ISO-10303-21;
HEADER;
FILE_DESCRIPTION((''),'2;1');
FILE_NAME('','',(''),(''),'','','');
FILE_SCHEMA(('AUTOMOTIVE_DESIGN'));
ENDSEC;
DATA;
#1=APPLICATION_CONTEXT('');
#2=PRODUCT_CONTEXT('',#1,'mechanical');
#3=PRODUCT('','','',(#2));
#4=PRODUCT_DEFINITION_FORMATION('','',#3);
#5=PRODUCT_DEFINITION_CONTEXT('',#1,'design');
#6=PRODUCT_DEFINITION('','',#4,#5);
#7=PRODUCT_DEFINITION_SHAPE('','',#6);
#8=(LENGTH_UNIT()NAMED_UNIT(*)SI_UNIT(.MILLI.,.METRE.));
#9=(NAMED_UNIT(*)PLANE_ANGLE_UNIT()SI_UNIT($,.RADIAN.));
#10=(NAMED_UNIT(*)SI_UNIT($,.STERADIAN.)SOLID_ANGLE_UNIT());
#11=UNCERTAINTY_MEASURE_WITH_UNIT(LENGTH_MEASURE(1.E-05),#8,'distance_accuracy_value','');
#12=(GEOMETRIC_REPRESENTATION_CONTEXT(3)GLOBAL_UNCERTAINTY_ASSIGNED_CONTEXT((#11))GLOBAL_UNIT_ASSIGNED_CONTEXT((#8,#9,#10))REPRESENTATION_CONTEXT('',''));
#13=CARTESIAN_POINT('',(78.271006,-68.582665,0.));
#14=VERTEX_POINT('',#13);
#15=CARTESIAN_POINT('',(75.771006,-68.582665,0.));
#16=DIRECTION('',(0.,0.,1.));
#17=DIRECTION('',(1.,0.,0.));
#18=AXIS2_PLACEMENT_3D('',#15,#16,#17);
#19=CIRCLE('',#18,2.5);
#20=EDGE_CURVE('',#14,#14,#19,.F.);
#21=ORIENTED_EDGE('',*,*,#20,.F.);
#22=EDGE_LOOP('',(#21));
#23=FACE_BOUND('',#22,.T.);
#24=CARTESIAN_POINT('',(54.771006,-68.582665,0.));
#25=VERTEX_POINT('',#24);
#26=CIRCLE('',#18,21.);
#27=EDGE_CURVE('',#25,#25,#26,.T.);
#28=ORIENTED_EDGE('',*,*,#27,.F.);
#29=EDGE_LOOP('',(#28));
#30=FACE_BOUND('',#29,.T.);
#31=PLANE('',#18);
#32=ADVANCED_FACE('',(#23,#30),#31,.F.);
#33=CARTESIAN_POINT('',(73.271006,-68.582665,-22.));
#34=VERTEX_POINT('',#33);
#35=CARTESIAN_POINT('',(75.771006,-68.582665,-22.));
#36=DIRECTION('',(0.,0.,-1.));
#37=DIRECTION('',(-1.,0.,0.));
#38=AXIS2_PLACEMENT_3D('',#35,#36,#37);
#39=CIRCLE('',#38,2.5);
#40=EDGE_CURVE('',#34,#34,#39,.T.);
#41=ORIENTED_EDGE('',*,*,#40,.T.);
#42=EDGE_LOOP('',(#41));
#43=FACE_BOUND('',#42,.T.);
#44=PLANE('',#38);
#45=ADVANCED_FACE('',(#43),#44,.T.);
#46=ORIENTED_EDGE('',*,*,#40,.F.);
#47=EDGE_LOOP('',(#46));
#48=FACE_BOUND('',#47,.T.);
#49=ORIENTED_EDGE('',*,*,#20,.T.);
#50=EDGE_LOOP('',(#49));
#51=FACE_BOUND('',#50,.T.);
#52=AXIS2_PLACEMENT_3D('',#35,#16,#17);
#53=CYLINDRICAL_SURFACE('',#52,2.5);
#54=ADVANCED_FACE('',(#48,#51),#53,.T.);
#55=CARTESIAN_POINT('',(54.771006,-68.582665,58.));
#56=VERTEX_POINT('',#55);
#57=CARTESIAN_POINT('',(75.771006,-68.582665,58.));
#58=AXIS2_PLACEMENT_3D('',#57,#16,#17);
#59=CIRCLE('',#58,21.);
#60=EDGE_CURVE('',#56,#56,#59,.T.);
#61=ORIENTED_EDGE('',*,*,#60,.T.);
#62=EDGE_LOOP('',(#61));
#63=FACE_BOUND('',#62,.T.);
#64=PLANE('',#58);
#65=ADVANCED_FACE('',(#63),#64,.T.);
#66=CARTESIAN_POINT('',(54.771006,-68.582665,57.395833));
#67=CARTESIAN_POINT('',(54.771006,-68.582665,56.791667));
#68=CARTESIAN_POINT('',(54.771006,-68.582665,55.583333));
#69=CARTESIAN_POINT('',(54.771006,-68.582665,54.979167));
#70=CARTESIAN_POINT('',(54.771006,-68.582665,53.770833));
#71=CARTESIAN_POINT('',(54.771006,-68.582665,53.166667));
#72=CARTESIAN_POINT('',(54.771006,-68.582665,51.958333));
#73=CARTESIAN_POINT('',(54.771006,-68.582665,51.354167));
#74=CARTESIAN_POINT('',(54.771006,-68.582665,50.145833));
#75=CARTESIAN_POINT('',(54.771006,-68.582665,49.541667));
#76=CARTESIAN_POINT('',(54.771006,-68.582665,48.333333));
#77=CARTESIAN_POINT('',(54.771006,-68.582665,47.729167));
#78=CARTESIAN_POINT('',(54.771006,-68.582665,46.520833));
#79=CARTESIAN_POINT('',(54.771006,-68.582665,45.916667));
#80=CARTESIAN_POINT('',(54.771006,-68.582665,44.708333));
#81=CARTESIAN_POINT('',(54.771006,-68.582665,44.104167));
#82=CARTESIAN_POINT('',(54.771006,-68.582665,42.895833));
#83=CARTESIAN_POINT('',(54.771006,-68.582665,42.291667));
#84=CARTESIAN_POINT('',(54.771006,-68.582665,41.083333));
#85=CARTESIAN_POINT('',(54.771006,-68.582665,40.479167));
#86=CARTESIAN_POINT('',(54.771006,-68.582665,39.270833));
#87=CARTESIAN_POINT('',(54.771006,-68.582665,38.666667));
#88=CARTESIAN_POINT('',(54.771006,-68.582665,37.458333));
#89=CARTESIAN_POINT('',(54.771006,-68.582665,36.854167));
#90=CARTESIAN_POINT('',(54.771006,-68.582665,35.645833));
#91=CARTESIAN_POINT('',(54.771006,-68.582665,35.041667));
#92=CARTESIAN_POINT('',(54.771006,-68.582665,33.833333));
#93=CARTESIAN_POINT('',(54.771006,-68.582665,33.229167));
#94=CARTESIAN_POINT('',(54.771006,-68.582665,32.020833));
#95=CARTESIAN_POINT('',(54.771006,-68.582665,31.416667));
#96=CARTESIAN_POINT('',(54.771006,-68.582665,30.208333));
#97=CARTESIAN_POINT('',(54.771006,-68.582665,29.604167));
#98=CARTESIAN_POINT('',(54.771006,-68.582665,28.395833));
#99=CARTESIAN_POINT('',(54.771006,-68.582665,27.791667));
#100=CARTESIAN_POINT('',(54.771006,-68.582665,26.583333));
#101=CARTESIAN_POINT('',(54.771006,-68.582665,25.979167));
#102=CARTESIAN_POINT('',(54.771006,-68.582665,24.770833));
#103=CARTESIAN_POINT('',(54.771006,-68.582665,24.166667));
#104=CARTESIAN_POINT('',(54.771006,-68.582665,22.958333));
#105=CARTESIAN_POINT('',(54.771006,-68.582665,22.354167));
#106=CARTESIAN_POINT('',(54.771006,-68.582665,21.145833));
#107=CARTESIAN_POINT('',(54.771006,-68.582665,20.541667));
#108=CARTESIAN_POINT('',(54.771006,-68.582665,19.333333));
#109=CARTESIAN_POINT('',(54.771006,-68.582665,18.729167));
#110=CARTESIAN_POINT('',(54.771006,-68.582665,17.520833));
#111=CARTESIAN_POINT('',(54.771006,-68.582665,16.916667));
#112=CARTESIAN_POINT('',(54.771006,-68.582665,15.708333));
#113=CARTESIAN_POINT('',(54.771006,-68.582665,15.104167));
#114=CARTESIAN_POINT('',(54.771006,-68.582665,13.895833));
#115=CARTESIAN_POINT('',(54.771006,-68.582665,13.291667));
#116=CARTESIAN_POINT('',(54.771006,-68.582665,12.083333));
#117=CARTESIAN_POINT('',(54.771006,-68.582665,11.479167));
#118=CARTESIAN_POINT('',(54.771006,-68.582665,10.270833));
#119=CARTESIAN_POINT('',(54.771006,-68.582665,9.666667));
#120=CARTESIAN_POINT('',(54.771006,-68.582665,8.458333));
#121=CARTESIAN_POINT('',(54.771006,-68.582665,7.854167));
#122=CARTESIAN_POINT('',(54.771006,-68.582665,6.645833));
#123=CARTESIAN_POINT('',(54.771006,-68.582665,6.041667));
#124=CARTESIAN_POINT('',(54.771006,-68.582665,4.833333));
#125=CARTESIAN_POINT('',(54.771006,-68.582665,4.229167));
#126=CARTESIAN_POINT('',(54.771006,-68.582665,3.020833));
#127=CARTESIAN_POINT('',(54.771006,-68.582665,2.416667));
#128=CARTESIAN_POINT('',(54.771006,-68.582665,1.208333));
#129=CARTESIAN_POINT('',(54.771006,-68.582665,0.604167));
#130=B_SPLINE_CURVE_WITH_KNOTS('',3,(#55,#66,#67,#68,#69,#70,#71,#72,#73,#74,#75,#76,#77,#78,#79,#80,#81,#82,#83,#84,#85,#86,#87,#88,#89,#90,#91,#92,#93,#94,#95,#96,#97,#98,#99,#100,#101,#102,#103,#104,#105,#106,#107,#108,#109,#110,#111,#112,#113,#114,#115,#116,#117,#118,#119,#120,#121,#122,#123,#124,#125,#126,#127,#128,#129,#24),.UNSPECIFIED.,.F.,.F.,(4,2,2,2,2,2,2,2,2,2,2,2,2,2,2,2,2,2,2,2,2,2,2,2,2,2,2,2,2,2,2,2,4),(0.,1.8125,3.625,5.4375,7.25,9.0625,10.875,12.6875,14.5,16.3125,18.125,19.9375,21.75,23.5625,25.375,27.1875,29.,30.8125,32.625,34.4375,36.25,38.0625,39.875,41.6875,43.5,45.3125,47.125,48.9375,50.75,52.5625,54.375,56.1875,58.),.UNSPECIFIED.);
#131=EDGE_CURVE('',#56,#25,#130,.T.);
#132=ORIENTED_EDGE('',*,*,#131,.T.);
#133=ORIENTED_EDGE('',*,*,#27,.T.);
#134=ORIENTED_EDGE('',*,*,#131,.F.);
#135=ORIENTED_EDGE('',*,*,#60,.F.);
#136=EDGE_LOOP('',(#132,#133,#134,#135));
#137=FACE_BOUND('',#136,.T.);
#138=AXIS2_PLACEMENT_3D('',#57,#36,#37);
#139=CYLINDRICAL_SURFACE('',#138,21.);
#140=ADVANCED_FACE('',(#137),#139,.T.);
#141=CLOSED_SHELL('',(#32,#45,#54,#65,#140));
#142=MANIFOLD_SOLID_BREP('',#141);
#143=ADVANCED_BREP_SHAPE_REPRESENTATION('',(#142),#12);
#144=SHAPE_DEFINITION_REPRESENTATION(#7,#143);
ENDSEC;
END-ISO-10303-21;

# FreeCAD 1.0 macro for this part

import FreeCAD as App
import Part
import Sketcher
from FreeCAD import Vector

doc = App.newDocument("Part")
body = doc.addObject("PartDesign::Body", "Body")

sketch1 = doc.addObject("Sketcher::SketchObject", "Sketch")
body.addObject(sketch1)
sketch1.AttachmentSupport = (doc.XY_Plane, [""])
sketch1.MapMode = "FlatFace"
sketch1.addGeometry(Part.Circle(Vector(76, -69, 0), Vector(0, 0, 1), 21), False)
sketch1.addConstraint([
    Sketcher.Constraint("Diameter", 0, 42.0),
    Sketcher.Constraint("DistanceX", -1, 1, 0, 3, 75.771006),
    Sketcher.Constraint("DistanceY", 0, 3, -1, 1, 68.582665),
])
pad1 = doc.addObject("PartDesign::Pad", "Pad")
body.addObject(pad1)
pad1.Profile = sketch1
pad1.Length = 58

sketch2 = doc.addObject("Sketcher::SketchObject", "Sketch001")
body.addObject(sketch2)
sketch2.AttachmentSupport = (doc.XY_Plane, [""])
sketch2.MapMode = "FlatFace"
sketch2.addGeometry(Part.Circle(Vector(75.8, -68.6, 0), Vector(0, 0, 1), 2.5), False)
sketch2.addConstraint([
    Sketcher.Constraint("Diameter", 0, 5.0),
    Sketcher.Constraint("DistanceX", -1, 1, 0, 3, 75.771006),
    Sketcher.Constraint("DistanceY", 0, 3, -1, 1, 68.582665),
])
pad2 = doc.addObject("PartDesign::Pad", "Pad001")
body.addObject(pad2)
pad2.Profile = sketch2
pad2.Length = 22
pad2.Reversed = True

doc.recompute()
